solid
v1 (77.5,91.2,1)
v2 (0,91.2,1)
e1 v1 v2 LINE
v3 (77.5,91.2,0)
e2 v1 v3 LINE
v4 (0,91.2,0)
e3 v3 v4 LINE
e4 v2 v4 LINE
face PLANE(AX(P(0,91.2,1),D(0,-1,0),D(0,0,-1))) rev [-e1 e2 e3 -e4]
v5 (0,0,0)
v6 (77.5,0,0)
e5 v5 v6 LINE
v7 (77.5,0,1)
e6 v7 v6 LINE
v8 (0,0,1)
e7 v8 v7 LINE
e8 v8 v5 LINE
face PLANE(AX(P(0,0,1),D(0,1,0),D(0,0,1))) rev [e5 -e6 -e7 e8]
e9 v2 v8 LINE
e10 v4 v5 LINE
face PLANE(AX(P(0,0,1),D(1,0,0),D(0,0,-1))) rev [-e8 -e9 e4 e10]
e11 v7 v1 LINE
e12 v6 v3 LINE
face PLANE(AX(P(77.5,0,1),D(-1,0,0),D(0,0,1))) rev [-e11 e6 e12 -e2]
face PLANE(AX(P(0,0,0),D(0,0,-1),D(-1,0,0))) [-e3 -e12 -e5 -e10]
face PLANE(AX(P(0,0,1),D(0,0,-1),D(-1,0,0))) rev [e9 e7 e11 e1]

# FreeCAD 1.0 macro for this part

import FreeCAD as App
import Part
import Sketcher

V = App.Vector


def add_polygon(sketch, points):
    """Adds a closed chain of lines whose ends are joined by coincident constraints."""
    first, n = sketch.GeometryCount, len(points)
    for a, b in zip(points, points[1:] + points[:1]):
        sketch.addGeometry(Part.LineSegment(App.Vector(*a, 0), App.Vector(*b, 0)), False)
    for i in range(n):
        sketch.addConstraint(Sketcher.Constraint("Coincident", first + i, 2, first + (i + 1) % n, 1))

doc = App.newDocument("Part")
body = doc.addObject("PartDesign::Body", "Body")

sketch1 = body.newObject("Sketcher::SketchObject", "Sketch")
sketch1.AttachmentSupport = (doc.getObject("XY_Plane"), [""])
sketch1.MapMode = "FlatFace"
add_polygon(sketch1, [(0, 91.2), (0, 0), (77.5, 0), (77.5, 91.2)])
sketch1.addConstraint(Sketcher.Constraint("Vertical", 0))
sketch1.addConstraint(Sketcher.Constraint("Horizontal", 1))
sketch1.addConstraint(Sketcher.Constraint("Vertical", 2))
sketch1.addConstraint(Sketcher.Constraint("Horizontal", 3))
sketch1.addConstraint(Sketcher.Constraint("Coincident", 0, 2, -1, 1))
sketch1.addConstraint(Sketcher.Constraint("DistanceX", 1, 1, 1, 2, 77.5))
sketch1.addConstraint(Sketcher.Constraint("DistanceY", 0, 2, 0, 1, 91.2))
pad1 = body.newObject("PartDesign::Pad", "Pad")
pad1.Profile = sketch1
pad1.Length = 1

doc.recompute()
